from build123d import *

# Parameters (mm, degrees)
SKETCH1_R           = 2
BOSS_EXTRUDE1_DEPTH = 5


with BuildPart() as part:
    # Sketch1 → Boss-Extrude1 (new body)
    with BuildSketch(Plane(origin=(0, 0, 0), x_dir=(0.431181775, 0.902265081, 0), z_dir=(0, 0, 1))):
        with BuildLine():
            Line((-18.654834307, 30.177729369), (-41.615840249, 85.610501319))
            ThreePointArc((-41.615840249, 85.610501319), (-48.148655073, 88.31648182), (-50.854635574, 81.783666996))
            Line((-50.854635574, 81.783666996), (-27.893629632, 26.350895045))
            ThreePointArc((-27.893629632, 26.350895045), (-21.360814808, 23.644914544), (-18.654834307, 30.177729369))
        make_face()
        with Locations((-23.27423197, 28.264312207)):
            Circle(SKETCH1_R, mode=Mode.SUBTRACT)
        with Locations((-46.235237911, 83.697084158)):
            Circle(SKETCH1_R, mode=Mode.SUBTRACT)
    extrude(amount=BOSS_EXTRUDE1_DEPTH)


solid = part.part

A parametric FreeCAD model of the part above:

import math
import FreeCAD as App
import Part
import Sketcher

doc = App.newDocument("Part")
params = doc.addObject("Spreadsheet::Sheet", "Params")
for row, (alias, value) in enumerate([
    ("sketch1_diameter", "4 mm"),
    ("sketch1_radius", "5 mm"),
    ("sketch1_length", "60 mm"),
    ("pad1_length", "5 mm"),
], start=1):
    params.set(f"A{row}", alias)
    params.set(f"B{row}", "=" + value)
    params.setAlias(f"B{row}", alias)

body = doc.addObject("PartDesign::Body", "Body")

# Sketch on XY plane
sketch1 = doc.addObject("Sketcher::SketchObject", "Sketch")
body.addObject(sketch1)
sketch1.AttachmentSupport = (doc.XY_Plane, [""])
sketch1.MapMode = "FlatFace"
sketch1.addGeometry(Part.LineSegment(App.Vector(-35.3, -3.8, 0), App.Vector(-95.2, -0.6, 0)), False)
sketch1.addGeometry(Part.ArcOfCircle(Part.Circle(App.Vector(-95.5, -5.6, 0), App.Vector(0, 0, 1), 5), math.radians(87), math.radians(267)), False)
sketch1.addGeometry(Part.LineSegment(App.Vector(-95.7, -10.6, 0), App.Vector(-35.8, -13.8, 0)), False)
sketch1.addGeometry(Part.ArcOfCircle(Part.Circle(App.Vector(-35.5, -8.8, 0), App.Vector(0, 0, 1), 5), math.radians(-93), math.radians(87)), False)
sketch1.addGeometry(Part.Circle(App.Vector(-35.5, -8.8, 0), App.Vector(0, 0, 1), 2), False)
sketch1.addGeometry(Part.Circle(App.Vector(-95.5, -5.6, 0), App.Vector(0, 0, 1), 2), False)
sketch1.addConstraint(Sketcher.Constraint("Tangent", 0, 2, 1, 1))
sketch1.addConstraint(Sketcher.Constraint("Tangent", 1, 2, 2, 1))
sketch1.addConstraint(Sketcher.Constraint("Tangent", 2, 2, 3, 1))
sketch1.addConstraint(Sketcher.Constraint("Tangent", 3, 2, 0, 1))
sketch1.addConstraint(Sketcher.Constraint("Coincident", 4, 3, 3, 3))
sketch1.addConstraint(Sketcher.Constraint("Coincident", 5, 3, 1, 3))
sketch1.addConstraint(Sketcher.Constraint("Equal", 1, 3))
sketch1.addConstraint(Sketcher.Constraint("Equal", 4, 5))
sketch1.addConstraint(Sketcher.Constraint("Diameter", 4, 4.0))
sketch1.addConstraint(Sketcher.Constraint("Radius", 1, 5.0))
sketch1.addConstraint(Sketcher.Constraint("Distance", 0, 60.0))
sketch1.addConstraint(Sketcher.Constraint("DistanceX", 1, 3, -1, 1, 95.452748))
sketch1.addConstraint(Sketcher.Constraint("DistanceY", 3, 3, -1, 1, 8.81247))
sketch1.addConstraint(Sketcher.Constraint("DistanceY", 0, 2, -1, 1, 0.634832))
sketch1.setExpression("Constraints[8]", "Params.sketch1_diameter")
sketch1.setExpression("Constraints[9]", "Params.sketch1_radius")
sketch1.setExpression("Constraints[10]", "Params.sketch1_length")
pad1 = doc.addObject("PartDesign::Pad", "Pad")
body.addObject(pad1)
pad1.Profile = sketch1
pad1.setExpression("Length", "Params.pad1_length")

doc.recompute()
